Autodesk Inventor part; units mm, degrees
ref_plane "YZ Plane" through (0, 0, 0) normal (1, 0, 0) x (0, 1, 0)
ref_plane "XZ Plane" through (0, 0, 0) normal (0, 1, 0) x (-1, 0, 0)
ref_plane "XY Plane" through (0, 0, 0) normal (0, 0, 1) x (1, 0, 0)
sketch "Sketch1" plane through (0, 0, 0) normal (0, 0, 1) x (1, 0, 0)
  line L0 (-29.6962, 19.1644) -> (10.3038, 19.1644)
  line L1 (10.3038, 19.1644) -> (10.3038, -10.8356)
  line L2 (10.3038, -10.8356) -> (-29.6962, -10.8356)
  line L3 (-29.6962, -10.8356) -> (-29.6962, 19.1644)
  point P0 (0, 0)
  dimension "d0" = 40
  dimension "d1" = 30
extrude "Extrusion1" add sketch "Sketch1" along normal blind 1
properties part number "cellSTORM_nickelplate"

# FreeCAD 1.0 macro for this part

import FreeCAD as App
import Part
import Sketcher
Q = App.Units.Quantity

doc = App.newDocument("Part")
body = doc.addObject("PartDesign::Body", "Body")

# Sketch on XY plane
sketch1 = body.newObject("Sketcher::SketchObject", "Sketch")
sketch1.AttachmentSupport = (doc.getObject("XY_Plane"), [""])
sketch1.MapMode = "FlatFace"
sketch1.addGeometry(Part.LineSegment(App.Vector(10.3038, 19.1644, 0), App.Vector(-29.6962, 19.1644, 0)), False)
sketch1.addGeometry(Part.LineSegment(App.Vector(-29.6962, 19.1644, 0), App.Vector(-29.6962, -10.8356, 0)), False)
sketch1.addGeometry(Part.LineSegment(App.Vector(-29.6962, -10.8356, 0), App.Vector(10.3038, -10.8356, 0)), False)
sketch1.addGeometry(Part.LineSegment(App.Vector(10.3038, -10.8356, 0), App.Vector(10.3038, 19.1644, 0)), False)
sketch1.addConstraint(Sketcher.Constraint("Coincident", 0, 2, 1, 1))
sketch1.addConstraint(Sketcher.Constraint("Coincident", 1, 2, 2, 1))
sketch1.addConstraint(Sketcher.Constraint("Coincident", 2, 2, 3, 1))
sketch1.addConstraint(Sketcher.Constraint("Coincident", 3, 2, 0, 1))
sketch1.addConstraint(Sketcher.Constraint("Horizontal", 0))
sketch1.addConstraint(Sketcher.Constraint("Vertical", 1))
sketch1.addConstraint(Sketcher.Constraint("Horizontal", 2))
sketch1.addConstraint(Sketcher.Constraint("Vertical", 3))
sketch1.addConstraint(Sketcher.Constraint("DistanceX", 0, 2, 0, 1, Q("40 mm")))
sketch1.addConstraint(Sketcher.Constraint("DistanceY", 1, 2, 1, 1, Q("30 mm")))
sketch1.addConstraint(Sketcher.Constraint("DistanceX", 0, 2, -1, 1, Q("29.6962 mm")))
sketch1.addConstraint(Sketcher.Constraint("DistanceY", -1, 1, 0, 2, Q("19.1644 mm")))
pad1 = body.newObject("PartDesign::Pad", "Pad")
pad1.Profile = sketch1
pad1.Length = 1

doc.recompute()
